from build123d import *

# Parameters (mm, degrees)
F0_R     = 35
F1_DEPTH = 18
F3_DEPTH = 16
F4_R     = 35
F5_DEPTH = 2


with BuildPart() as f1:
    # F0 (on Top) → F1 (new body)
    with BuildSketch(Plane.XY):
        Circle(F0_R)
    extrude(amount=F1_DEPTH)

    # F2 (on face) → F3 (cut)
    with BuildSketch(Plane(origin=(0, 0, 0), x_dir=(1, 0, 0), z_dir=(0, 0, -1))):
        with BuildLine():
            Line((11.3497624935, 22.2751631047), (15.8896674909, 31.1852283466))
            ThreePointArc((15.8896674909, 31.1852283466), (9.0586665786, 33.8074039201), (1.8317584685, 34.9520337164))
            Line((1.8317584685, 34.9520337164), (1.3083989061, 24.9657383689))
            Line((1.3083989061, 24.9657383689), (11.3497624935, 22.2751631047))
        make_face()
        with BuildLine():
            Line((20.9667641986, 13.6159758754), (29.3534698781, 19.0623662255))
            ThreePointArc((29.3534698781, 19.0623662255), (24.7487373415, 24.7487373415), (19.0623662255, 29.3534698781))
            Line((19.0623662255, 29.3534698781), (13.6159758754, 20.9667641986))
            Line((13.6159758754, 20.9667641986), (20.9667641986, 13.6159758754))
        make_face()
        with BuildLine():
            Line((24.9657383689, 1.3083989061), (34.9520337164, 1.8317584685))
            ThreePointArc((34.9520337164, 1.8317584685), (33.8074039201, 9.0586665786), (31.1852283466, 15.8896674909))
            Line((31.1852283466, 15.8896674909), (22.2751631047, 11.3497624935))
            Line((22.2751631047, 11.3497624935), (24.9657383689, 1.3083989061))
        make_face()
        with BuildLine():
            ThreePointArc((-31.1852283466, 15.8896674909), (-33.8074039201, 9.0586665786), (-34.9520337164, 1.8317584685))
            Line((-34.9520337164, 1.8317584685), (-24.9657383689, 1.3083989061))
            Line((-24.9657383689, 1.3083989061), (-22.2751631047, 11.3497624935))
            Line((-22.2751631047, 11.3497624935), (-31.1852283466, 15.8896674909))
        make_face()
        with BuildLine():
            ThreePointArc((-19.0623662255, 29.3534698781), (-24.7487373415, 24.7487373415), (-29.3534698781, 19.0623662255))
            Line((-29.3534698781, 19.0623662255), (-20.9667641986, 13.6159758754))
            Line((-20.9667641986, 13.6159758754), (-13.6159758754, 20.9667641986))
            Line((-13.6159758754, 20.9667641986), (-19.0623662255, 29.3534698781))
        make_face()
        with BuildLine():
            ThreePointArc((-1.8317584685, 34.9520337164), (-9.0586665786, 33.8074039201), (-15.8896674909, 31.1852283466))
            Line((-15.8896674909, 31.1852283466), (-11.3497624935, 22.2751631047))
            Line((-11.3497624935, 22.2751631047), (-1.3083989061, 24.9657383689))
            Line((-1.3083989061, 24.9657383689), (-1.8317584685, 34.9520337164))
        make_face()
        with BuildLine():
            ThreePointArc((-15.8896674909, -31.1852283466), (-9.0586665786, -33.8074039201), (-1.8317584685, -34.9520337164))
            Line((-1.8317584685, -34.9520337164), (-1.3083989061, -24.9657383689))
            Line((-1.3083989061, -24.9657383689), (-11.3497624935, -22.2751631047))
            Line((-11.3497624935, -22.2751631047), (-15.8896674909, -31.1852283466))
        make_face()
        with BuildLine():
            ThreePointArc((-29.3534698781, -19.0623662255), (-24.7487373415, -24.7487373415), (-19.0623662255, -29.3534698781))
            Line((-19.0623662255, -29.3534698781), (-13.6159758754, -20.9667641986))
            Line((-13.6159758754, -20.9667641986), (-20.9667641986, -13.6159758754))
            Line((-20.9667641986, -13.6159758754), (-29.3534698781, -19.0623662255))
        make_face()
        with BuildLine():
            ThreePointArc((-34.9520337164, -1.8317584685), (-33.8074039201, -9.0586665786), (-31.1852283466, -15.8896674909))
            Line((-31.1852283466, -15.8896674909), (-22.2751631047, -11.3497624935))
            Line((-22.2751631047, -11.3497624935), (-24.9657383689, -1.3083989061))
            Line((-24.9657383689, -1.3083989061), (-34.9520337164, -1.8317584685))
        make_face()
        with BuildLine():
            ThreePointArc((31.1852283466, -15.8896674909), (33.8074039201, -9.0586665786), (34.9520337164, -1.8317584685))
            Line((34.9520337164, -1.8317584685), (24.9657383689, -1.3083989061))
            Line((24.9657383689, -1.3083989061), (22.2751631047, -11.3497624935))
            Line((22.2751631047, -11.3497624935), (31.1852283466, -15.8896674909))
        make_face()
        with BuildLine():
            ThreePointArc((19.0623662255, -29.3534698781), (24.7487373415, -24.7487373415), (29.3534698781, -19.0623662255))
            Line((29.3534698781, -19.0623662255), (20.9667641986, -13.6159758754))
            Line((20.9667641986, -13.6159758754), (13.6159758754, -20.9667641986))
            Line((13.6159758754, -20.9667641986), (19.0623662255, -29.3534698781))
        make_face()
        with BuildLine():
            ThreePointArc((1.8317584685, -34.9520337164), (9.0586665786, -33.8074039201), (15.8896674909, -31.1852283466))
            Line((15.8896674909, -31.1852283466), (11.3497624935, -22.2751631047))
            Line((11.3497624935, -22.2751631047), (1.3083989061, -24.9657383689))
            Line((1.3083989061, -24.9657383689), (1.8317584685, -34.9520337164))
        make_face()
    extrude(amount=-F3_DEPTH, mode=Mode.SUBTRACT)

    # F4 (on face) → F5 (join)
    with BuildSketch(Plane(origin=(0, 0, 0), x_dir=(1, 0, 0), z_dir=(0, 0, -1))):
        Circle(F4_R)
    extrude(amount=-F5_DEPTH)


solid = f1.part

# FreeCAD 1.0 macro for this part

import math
import FreeCAD as App
import Part
import Sketcher

V = App.Vector
Q = App.Units.Quantity

doc = App.newDocument("Part")
params = doc.addObject("Spreadsheet::Sheet", "Params")
for row, (alias, value) in enumerate([
    ("sketch1_diameter", "70 mm"),
    ("pad1_length", "18 mm"),
    ("sketch2_radius", "35 mm"),
    ("sketch2_length", "10 mm"),
    ("pocket1_length", "16 mm"),
    ("sketch3_diameter", "70 mm"),
    ("pad2_length", "2 mm"),
], start=1):
    params.set(f"A{row}", alias)
    params.set(f"B{row}", "=" + value)
    params.setAlias(f"B{row}", alias)

body = doc.addObject("PartDesign::Body", "Body")

# Sketch on XY plane
sketch1 = body.newObject("Sketcher::SketchObject", "Sketch")
sketch1.AttachmentSupport = (doc.getObject("XY_Plane"), [""])
sketch1.MapMode = "FlatFace"
sketch1.addGeometry(Part.Circle(V(0, 0, 0), V(0, 0, 1), 35), False)
sketch1.addConstraint([
    Sketcher.Constraint("Coincident", 0, 3, -1, 1),
    Sketcher.Constraint("Diameter", 0, Q("70 mm")),
])
sketch1.setExpression("Constraints[1]", "Params.sketch1_diameter")
pad1 = body.newObject("PartDesign::Pad", "Pad")
pad1.Profile = sketch1
pad1.setExpression("Length", "Params.pad1_length")

# Sketch on XY plane
sketch2 = body.newObject("Sketcher::SketchObject", "Sketch001")
sketch2.AttachmentSupport = (doc.getObject("XY_Plane"), [""])
sketch2.MapMode = "FlatFace"
sketch2.addGeometry([
    Part.LineSegment(V(11, -22, 0), V(16, -31, 0)),  # 0
    Part.ArcOfCircle(Part.Circle(V(0, 0, 0), V(0, 0, 1), 35), math.radians(-87), math.radians(-63)),  # 1
    Part.LineSegment(V(2, -35, 0), V(1, -25, 0)),  # 2
    Part.LineSegment(V(1, -25, 0), V(11, -22, 0)),  # 3
    Part.LineSegment(V(21, -14, 0), V(29, -19, 0)),  # 4
    Part.ArcOfCircle(Part.Circle(V(0, 0, 0), V(0, 0, 1), 35), math.radians(-57), math.radians(-33)),  # 5
    Part.LineSegment(V(19, -29, 0), V(14, -21, 0)),  # 6
    Part.LineSegment(V(14, -21, 0), V(21, -14, 0)),  # 7
    Part.LineSegment(V(25, -1, 0), V(35, -2, 0)),  # 8
    Part.ArcOfCircle(Part.Circle(V(0, 0, 0), V(0, 0, 1), 35), math.radians(-27), math.radians(-3)),  # 9
    Part.LineSegment(V(31, -16, 0), V(22, -11, 0)),  # 10
    Part.LineSegment(V(22, -11, 0), V(25, -1, 0)),  # 11
    Part.ArcOfCircle(Part.Circle(V(0, 0, 0), V(0, 0, 1), 35), math.radians(-177), math.radians(-153)),  # 12
    Part.LineSegment(V(-35, -2, 0), V(-25, -1, 0)),  # 13
    Part.LineSegment(V(-25, -1, 0), V(-22, -11, 0)),  # 14
    Part.LineSegment(V(-22, -11, 0), V(-31, -16, 0)),  # 15
    Part.ArcOfCircle(Part.Circle(V(0, 0, 0), V(0, 0, 1), 35), math.radians(-147), math.radians(-123)),  # 16
    Part.LineSegment(V(-29, -19, 0), V(-21, -14, 0)),  # 17
    Part.LineSegment(V(-21, -14, 0), V(-14, -21, 0)),  # 18
    Part.LineSegment(V(-14, -21, 0), V(-19, -29, 0)),  # 19
    Part.ArcOfCircle(Part.Circle(V(0, 0, 0), V(0, 0, 1), 35), math.radians(-117), math.radians(-93)),  # 20
    Part.LineSegment(V(-16, -31, 0), V(-11, -22, 0)),  # 21
    Part.LineSegment(V(-11, -22, 0), V(-1, -25, 0)),  # 22
    Part.LineSegment(V(-1, -25, 0), V(-2, -35, 0)),  # 23
    Part.ArcOfCircle(Part.Circle(V(0, 0, 0), V(0, 0, 1), 35), math.radians(93), math.radians(117)),  # 24
    Part.LineSegment(V(-2, 35, 0), V(-1, 25, 0)),  # 25
    Part.LineSegment(V(-1, 25, 0), V(-11, 22, 0)),  # 26
    Part.LineSegment(V(-11, 22, 0), V(-16, 31, 0)),  # 27
    Part.ArcOfCircle(Part.Circle(V(0, 0, 0), V(0, 0, 1), 35), math.radians(123), math.radians(147)),  # 28
    Part.LineSegment(V(-19, 29, 0), V(-14, 21, 0)),  # 29
    Part.LineSegment(V(-14, 21, 0), V(-21, 14, 0)),  # 30
    Part.LineSegment(V(-21, 14, 0), V(-29, 19, 0)),  # 31
    Part.ArcOfCircle(Part.Circle(V(0, 0, 0), V(0, 0, 1), 35), math.radians(153), math.radians(177)),  # 32
    Part.LineSegment(V(-31, 16, 0), V(-22, 11, 0)),  # 33
    Part.LineSegment(V(-22, 11, 0), V(-25, 1, 0)),  # 34
    Part.LineSegment(V(-25, 1, 0), V(-35, 2, 0)),  # 35
    Part.ArcOfCircle(Part.Circle(V(0, 0, 0), V(0, 0, 1), 35), math.radians(3), math.radians(27)),  # 36
    Part.LineSegment(V(35, 2, 0), V(25, 1, 0)),  # 37
    Part.LineSegment(V(25, 1, 0), V(22, 11, 0)),  # 38
    Part.LineSegment(V(22, 11, 0), V(31, 16, 0)),  # 39
    Part.ArcOfCircle(Part.Circle(V(0, 0, 0), V(0, 0, 1), 35), math.radians(33), math.radians(57)),  # 40
    Part.LineSegment(V(29, 19, 0), V(21, 14, 0)),  # 41
    Part.LineSegment(V(21, 14, 0), V(14, 21, 0)),  # 42
    Part.LineSegment(V(14, 21, 0), V(19, 29, 0)),  # 43
    Part.ArcOfCircle(Part.Circle(V(0, 0, 0), V(0, 0, 1), 35), math.radians(63), math.radians(87)),  # 44
    Part.LineSegment(V(16, 31, 0), V(11, 22, 0)),  # 45
    Part.LineSegment(V(11, 22, 0), V(1, 25, 0)),  # 46
    Part.LineSegment(V(1, 25, 0), V(2, 35, 0)),  # 47
], False)
sketch2.addConstraint([
    Sketcher.Constraint("Coincident", 0, 2, 1, 2),
    Sketcher.Constraint("Coincident", 1, 1, 2, 1),
    Sketcher.Constraint("Coincident", 2, 2, 3, 1),
    Sketcher.Constraint("Coincident", 3, 2, 0, 1),
    Sketcher.Constraint("Coincident", 4, 2, 5, 2),
    Sketcher.Constraint("Coincident", 5, 1, 6, 1),
    Sketcher.Constraint("Coincident", 6, 2, 7, 1),
    Sketcher.Constraint("Coincident", 7, 2, 4, 1),
    Sketcher.Constraint("Coincident", 8, 2, 9, 2),
    Sketcher.Constraint("Coincident", 9, 1, 10, 1),
    Sketcher.Constraint("Coincident", 10, 2, 11, 1),
    Sketcher.Constraint("Coincident", 11, 2, 8, 1),
    Sketcher.Constraint("Coincident", 12, 1, 13, 1),
    Sketcher.Constraint("Coincident", 13, 2, 14, 1),
    Sketcher.Constraint("Coincident", 14, 2, 15, 1),
    Sketcher.Constraint("Coincident", 15, 2, 12, 2),
    Sketcher.Constraint("Coincident", 16, 1, 17, 1),
    Sketcher.Constraint("Coincident", 17, 2, 18, 1),
    Sketcher.Constraint("Coincident", 18, 2, 19, 1),
    Sketcher.Constraint("Coincident", 19, 2, 16, 2),
    Sketcher.Constraint("Coincident", 20, 1, 21, 1),
    Sketcher.Constraint("Coincident", 21, 2, 22, 1),
    Sketcher.Constraint("Coincident", 22, 2, 23, 1),
    Sketcher.Constraint("Coincident", 23, 2, 20, 2),
    Sketcher.Constraint("Coincident", 24, 1, 25, 1),
    Sketcher.Constraint("Coincident", 25, 2, 26, 1),
    Sketcher.Constraint("Coincident", 26, 2, 27, 1),
    Sketcher.Constraint("Coincident", 27, 2, 24, 2),
    Sketcher.Constraint("Coincident", 28, 1, 29, 1),
    Sketcher.Constraint("Coincident", 29, 2, 30, 1),
    Sketcher.Constraint("Coincident", 30, 2, 31, 1),
    Sketcher.Constraint("Coincident", 31, 2, 28, 2),
    Sketcher.Constraint("Coincident", 32, 1, 33, 1),
    Sketcher.Constraint("Coincident", 33, 2, 34, 1),
    Sketcher.Constraint("Coincident", 34, 2, 35, 1),
    Sketcher.Constraint("Coincident", 35, 2, 32, 2),
    Sketcher.Constraint("Coincident", 36, 1, 37, 1),
    Sketcher.Constraint("Coincident", 37, 2, 38, 1),
    Sketcher.Constraint("Coincident", 38, 2, 39, 1),
    Sketcher.Constraint("Coincident", 39, 2, 36, 2),
    Sketcher.Constraint("Coincident", 40, 1, 41, 1),
    Sketcher.Constraint("Coincident", 41, 2, 42, 1),
    Sketcher.Constraint("Coincident", 42, 2, 43, 1),
    Sketcher.Constraint("Coincident", 43, 2, 40, 2),
    Sketcher.Constraint("Coincident", 44, 1, 45, 1),
    Sketcher.Constraint("Coincident", 45, 2, 46, 1),
    Sketcher.Constraint("Coincident", 46, 2, 47, 1),
    Sketcher.Constraint("Coincident", 47, 2, 44, 2),
    Sketcher.Constraint("Coincident", 1, 3, -1, 1),
    Sketcher.Constraint("Coincident", 5, 3, -1, 1),
    Sketcher.Constraint("Coincident", 9, 3, -1, 1),
    Sketcher.Constraint("Coincident", 12, 3, -1, 1),
    Sketcher.Constraint("Coincident", 16, 3, -1, 1),
    Sketcher.Constraint("Coincident", 20, 3, -1, 1),
    Sketcher.Constraint("Coincident", 24, 3, -1, 1),
    Sketcher.Constraint("Coincident", 28, 3, -1, 1),
    Sketcher.Constraint("Coincident", 32, 3, -1, 1),
    Sketcher.Constraint("Coincident", 36, 3, -1, 1),
    Sketcher.Constraint("Coincident", 40, 3, -1, 1),
    Sketcher.Constraint("Coincident", 44, 3, -1, 1),
    Sketcher.Constraint("Equal", 1, 5),
    Sketcher.Constraint("Equal", 5, 9),
    Sketcher.Constraint("Equal", 9, 12),
    Sketcher.Constraint("Equal", 12, 16),
    Sketcher.Constraint("Equal", 16, 20),
    Sketcher.Constraint("Equal", 20, 24),
    Sketcher.Constraint("Equal", 24, 28),
    Sketcher.Constraint("Equal", 28, 32),
    Sketcher.Constraint("Equal", 32, 36),
    Sketcher.Constraint("Equal", 36, 40),
    Sketcher.Constraint("Equal", 40, 44),
    Sketcher.Constraint("Symmetric", 2, 2, 25, 2, -1, 1),
    Sketcher.Constraint("Symmetric", 3, 2, 26, 2, -1, 1),
    Sketcher.Constraint("Symmetric", 6, 2, 29, 2, -1, 1),
    Sketcher.Constraint("Symmetric", 7, 2, 30, 2, -1, 1),
    Sketcher.Constraint("Symmetric", 10, 2, 33, 2, -1, 1),
    Sketcher.Constraint("Symmetric", 11, 2, 34, 2, -1, 1),
    Sketcher.Constraint("Symmetric", 13, 2, 37, 2, -1, 1),
    Sketcher.Constraint("Symmetric", 14, 2, 38, 2, -1, 1),
    Sketcher.Constraint("Symmetric", 17, 2, 41, 2, -1, 1),
    Sketcher.Constraint("Symmetric", 18, 2, 42, 2, -1, 1),
    Sketcher.Constraint("Symmetric", 21, 2, 45, 2, -1, 1),
    Sketcher.Constraint("Symmetric", 22, 2, 46, 2, -1, 1),
    Sketcher.Constraint("Symmetric", 11, 2, 13, 2, -2),
    Sketcher.Constraint("Symmetric", 10, 2, 14, 2, -2),
    Sketcher.Constraint("Symmetric", 7, 2, 17, 2, -2),
    Sketcher.Constraint("Symmetric", 6, 2, 18, 2, -2),
    Sketcher.Constraint("Symmetric", 3, 2, 21, 2, -2),
    Sketcher.Constraint("Symmetric", 2, 2, 22, 2, -2),
    Sketcher.Constraint("Perpendicular", 2, 13),
    Sketcher.Constraint("Perpendicular", 3, 14),
    Sketcher.Constraint("Perpendicular", 0, 15),
    Sketcher.Constraint("Perpendicular", 6, 17),
    Sketcher.Constraint("Perpendicular", 7, 18),
    Sketcher.Constraint("Perpendicular", 4, 19),
    Sketcher.Constraint("Perpendicular", 10, 21),
    Sketcher.Constraint("Perpendicular", 8, 23),
    Sketcher.Constraint("Perpendicular", 13, 25),
    Sketcher.Constraint("Perpendicular", 15, 27),
    Sketcher.Constraint("Perpendicular", 17, 29),
    Sketcher.Constraint("Perpendicular", 19, 31),
    Sketcher.Constraint("Perpendicular", 21, 33),
    Sketcher.Constraint("Perpendicular", 23, 35),
    Sketcher.Constraint("Perpendicular", 25, 37),
    Sketcher.Constraint("Perpendicular", 27, 39),
    Sketcher.Constraint("Perpendicular", 29, 41),
    Sketcher.Constraint("Perpendicular", 31, 43),
    Sketcher.Constraint("Perpendicular", 33, 45),
    Sketcher.Constraint("Perpendicular", 35, 47),
    Sketcher.Constraint("Horizontal", 8, 2, 12, 1),
    Sketcher.Constraint("Horizontal", 9, 1, 15, 2),
    Sketcher.Constraint("Horizontal", 4, 2, 16, 1),
    Sketcher.Constraint("Equal", 0, 2),
    Sketcher.Constraint("Equal", 2, 4),
    Sketcher.Constraint("Equal", 4, 6),
    Sketcher.Constraint("Equal", 3, 7),
    Sketcher.Constraint("Equal", 6, 8),
    Sketcher.Constraint("Equal", 8, 10),
    Sketcher.Constraint("Equal", 7, 11),
    Sketcher.Constraint("Radius", 1, Q("35 mm")),
    Sketcher.Constraint("Angle", 0, Q("-63 deg")),
    Sketcher.Constraint("Angle", 2, Q("93 deg")),
    Sketcher.Constraint("Angle", 3, Q("15 deg")),
    Sketcher.Constraint("Angle", 4, Q("-33 deg")),
    Sketcher.Constraint("Distance", 0, Q("10 mm")),
    Sketcher.Constraint("DistanceX", 3, 2, 7, 2, Q("9.617002 mm")),
])
sketch2.setExpression("Constraints[119]", "Params.sketch2_radius")
sketch2.setExpression("Constraints[124]", "Params.sketch2_length")
pocket1 = body.newObject("PartDesign::Pocket", "Pocket")
pocket1.Profile = sketch2
pocket1.setExpression("Length", "Params.pocket1_length")
pocket1.Reversed = True

# Sketch on XY plane
sketch3 = body.newObject("Sketcher::SketchObject", "Sketch002")
sketch3.AttachmentSupport = (doc.getObject("XY_Plane"), [""])
sketch3.MapMode = "FlatFace"
sketch3.addGeometry(Part.Circle(V(0, 0, 0), V(0, 0, 1), 35), False)
sketch3.addConstraint([
    Sketcher.Constraint("Coincident", 0, 3, -1, 1),
    Sketcher.Constraint("Diameter", 0, Q("70 mm")),
])
sketch3.setExpression("Constraints[1]", "Params.sketch3_diameter")
pad2 = body.newObject("PartDesign::Pad", "Pad001")
pad2.Profile = sketch3
pad2.setExpression("Length", "Params.pad2_length")

doc.recompute()
